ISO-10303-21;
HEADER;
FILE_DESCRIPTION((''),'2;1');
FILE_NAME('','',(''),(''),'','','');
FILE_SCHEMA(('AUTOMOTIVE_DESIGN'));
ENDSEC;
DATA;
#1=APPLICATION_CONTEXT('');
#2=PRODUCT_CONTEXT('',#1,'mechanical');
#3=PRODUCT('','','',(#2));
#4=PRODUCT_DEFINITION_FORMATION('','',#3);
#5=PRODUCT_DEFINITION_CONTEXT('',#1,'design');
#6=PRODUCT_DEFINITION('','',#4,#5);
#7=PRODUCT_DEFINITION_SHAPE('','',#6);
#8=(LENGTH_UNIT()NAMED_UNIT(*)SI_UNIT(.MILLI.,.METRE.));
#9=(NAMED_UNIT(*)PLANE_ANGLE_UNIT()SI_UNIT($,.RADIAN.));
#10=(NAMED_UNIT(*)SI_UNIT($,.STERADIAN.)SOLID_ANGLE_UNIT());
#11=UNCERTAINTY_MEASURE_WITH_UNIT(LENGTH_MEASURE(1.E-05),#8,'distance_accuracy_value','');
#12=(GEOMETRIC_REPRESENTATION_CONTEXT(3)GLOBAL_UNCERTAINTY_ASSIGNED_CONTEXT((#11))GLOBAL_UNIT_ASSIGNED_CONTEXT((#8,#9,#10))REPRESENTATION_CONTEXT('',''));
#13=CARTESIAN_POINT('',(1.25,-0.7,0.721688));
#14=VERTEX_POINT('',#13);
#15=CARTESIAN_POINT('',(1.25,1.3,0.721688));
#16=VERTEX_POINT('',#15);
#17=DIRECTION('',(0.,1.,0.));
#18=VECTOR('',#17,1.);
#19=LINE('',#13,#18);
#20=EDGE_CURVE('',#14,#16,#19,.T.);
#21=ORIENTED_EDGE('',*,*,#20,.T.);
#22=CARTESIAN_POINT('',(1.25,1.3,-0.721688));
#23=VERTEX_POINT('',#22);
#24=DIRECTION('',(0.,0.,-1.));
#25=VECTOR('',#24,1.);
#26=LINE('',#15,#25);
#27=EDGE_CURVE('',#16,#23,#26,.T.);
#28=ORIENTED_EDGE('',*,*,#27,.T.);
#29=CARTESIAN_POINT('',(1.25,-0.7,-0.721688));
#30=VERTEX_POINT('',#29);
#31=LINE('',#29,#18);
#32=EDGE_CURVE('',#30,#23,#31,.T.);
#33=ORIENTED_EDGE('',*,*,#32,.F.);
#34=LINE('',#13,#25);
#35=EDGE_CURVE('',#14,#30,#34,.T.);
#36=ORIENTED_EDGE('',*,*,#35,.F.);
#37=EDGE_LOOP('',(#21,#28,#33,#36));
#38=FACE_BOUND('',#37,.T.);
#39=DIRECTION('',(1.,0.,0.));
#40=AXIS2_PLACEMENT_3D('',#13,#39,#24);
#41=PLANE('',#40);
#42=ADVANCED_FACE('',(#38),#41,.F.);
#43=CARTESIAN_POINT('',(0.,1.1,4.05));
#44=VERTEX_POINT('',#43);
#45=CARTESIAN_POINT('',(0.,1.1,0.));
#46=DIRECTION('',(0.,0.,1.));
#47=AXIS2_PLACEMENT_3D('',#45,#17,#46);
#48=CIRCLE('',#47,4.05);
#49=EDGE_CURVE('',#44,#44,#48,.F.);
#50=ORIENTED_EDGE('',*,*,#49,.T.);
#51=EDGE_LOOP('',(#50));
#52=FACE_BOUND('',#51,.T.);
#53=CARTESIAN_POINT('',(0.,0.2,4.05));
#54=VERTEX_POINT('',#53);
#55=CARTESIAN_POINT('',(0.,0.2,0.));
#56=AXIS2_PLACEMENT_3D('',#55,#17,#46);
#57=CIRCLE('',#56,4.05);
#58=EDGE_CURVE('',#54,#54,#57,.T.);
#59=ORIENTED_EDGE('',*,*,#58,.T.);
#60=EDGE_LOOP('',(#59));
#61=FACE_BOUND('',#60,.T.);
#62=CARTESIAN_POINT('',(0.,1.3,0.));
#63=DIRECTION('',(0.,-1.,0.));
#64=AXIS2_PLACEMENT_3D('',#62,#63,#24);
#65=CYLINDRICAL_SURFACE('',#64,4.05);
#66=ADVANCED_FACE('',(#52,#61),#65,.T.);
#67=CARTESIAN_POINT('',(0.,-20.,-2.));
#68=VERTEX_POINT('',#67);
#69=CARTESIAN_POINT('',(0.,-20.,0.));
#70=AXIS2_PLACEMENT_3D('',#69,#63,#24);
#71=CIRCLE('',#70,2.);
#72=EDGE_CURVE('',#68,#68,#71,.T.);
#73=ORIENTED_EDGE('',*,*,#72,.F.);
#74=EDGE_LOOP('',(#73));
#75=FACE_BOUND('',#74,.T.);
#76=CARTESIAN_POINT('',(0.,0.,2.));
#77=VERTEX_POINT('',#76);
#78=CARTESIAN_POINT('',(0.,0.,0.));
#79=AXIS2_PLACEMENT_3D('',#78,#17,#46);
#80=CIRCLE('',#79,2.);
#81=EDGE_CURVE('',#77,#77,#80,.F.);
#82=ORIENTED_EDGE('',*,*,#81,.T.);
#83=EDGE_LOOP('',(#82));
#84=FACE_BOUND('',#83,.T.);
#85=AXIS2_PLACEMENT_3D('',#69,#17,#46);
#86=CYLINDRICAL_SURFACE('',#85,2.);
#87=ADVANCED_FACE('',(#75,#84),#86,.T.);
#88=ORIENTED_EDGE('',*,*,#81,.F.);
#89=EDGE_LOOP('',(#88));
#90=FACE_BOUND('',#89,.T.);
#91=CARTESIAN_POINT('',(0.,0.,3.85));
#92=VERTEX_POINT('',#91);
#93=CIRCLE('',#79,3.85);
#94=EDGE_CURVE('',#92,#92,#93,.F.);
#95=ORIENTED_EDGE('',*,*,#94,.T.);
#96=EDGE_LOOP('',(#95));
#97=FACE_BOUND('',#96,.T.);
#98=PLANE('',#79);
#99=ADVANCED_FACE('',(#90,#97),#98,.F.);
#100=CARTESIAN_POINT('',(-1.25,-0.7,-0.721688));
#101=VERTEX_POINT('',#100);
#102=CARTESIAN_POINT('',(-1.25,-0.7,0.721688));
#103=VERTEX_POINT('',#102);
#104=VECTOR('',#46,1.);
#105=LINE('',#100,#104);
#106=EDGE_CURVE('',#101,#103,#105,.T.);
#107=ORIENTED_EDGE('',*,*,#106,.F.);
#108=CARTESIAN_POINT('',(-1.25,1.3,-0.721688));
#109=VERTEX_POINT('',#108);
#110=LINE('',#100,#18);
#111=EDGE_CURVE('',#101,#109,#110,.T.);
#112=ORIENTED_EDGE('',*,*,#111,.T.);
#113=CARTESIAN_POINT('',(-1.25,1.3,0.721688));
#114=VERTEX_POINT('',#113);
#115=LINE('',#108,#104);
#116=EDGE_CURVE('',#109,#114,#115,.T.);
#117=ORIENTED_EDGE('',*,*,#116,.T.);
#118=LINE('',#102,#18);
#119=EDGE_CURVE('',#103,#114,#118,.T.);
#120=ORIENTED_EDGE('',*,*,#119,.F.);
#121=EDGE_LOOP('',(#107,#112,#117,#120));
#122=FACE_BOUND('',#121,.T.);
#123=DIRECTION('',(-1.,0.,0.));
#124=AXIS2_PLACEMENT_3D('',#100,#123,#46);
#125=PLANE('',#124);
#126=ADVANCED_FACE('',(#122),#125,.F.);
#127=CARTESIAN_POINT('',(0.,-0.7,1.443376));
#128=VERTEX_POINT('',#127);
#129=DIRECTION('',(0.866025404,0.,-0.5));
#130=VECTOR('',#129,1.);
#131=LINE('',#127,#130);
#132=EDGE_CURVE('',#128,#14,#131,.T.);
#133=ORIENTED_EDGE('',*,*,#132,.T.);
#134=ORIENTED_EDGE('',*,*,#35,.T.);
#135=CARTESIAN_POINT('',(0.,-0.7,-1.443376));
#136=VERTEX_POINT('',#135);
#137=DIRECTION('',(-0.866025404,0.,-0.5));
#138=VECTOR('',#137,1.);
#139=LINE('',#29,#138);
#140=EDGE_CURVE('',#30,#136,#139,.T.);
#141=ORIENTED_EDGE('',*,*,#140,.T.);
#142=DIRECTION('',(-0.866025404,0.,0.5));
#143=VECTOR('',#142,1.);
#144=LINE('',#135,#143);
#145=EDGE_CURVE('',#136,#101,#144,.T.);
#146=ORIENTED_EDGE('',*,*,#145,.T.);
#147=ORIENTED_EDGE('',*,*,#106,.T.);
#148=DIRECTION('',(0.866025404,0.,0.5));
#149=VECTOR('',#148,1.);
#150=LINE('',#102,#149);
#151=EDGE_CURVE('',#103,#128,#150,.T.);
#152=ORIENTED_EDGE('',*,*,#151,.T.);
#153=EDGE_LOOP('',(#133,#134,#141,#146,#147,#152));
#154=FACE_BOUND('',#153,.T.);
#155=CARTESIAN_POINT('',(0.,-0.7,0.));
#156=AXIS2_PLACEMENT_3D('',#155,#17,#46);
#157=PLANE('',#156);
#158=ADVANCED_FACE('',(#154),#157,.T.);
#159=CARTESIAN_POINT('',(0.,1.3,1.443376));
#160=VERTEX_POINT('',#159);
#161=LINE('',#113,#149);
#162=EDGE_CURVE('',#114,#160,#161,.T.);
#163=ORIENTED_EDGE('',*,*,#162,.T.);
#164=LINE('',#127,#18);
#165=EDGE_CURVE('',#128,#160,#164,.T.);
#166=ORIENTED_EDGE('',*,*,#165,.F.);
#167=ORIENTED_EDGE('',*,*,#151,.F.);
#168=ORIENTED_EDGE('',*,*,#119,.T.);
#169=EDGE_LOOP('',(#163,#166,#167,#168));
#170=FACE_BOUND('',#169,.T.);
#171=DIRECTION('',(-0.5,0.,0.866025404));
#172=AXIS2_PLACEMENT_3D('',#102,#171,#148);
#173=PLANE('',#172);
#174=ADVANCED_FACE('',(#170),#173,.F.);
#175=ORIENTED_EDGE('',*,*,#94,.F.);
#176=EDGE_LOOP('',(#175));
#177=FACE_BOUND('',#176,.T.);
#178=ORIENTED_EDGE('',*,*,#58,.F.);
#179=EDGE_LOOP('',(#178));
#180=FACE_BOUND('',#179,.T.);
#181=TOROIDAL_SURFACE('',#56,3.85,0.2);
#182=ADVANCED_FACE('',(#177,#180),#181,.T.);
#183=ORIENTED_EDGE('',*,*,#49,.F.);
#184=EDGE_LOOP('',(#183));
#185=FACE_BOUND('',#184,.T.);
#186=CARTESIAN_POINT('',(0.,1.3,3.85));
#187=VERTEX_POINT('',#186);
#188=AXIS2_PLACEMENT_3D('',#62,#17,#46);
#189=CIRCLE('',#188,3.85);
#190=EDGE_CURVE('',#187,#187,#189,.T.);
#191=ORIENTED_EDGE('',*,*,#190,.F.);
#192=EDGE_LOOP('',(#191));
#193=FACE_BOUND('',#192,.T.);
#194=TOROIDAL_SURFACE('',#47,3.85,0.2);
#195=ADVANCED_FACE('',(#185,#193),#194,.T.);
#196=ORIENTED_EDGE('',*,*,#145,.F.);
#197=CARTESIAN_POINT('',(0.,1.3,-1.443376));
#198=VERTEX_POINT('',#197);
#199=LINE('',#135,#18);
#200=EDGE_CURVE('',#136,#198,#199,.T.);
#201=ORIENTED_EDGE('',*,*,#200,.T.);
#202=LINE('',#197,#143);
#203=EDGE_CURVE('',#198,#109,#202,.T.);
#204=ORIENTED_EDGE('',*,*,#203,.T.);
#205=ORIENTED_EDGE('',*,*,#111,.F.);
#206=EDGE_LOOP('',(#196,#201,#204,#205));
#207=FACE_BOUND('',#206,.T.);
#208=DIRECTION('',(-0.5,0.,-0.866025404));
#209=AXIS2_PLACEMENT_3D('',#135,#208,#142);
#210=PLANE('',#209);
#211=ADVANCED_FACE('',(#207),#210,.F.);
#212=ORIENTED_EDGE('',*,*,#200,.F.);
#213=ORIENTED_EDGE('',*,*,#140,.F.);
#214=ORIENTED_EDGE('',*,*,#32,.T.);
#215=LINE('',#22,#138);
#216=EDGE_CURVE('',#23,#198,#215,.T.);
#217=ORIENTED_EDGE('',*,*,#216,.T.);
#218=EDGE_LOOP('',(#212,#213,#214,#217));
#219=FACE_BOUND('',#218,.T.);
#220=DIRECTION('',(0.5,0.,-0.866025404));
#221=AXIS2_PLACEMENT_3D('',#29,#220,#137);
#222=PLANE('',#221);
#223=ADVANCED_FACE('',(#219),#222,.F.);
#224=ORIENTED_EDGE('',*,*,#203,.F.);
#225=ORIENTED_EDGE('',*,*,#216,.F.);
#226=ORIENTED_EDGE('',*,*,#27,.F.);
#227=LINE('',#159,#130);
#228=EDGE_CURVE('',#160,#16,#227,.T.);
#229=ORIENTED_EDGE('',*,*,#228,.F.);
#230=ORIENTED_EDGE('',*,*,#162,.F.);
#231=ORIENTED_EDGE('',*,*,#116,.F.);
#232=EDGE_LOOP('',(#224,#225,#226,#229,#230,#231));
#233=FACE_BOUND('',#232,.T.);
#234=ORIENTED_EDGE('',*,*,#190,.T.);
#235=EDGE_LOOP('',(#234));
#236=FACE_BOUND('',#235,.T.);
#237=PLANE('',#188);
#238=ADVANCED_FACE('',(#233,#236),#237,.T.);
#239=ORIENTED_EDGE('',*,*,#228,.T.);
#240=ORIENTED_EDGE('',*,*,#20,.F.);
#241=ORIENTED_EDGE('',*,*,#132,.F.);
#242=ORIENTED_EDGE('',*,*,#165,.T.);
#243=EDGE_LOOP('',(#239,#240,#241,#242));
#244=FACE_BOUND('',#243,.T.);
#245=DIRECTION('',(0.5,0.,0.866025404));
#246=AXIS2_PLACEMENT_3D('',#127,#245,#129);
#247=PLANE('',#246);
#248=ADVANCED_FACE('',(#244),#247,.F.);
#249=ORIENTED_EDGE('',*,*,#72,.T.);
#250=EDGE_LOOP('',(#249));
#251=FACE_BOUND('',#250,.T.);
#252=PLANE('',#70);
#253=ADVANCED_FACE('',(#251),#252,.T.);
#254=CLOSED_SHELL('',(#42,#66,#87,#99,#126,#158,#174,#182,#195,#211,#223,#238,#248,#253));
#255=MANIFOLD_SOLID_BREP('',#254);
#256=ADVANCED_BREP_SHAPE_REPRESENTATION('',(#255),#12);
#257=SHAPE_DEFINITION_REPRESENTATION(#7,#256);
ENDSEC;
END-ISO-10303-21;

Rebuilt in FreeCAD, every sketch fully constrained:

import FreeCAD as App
import Part
import Sketcher
Q = App.Units.Quantity


def edges_at(feature, points):
    """Names of the edges that pass closest to the given points."""
    edges = feature.Shape.Edges
    near = lambda p: min(range(len(edges)), key=lambda i: edges[i].distToShape(Part.Vertex(*p))[0])
    return sorted({f"Edge{near(p) + 1}" for p in points})


def add_polygon(sketch, points):
    """Adds a closed chain of lines whose ends are joined by coincident constraints."""
    first, n = sketch.GeometryCount, len(points)
    for a, b in zip(points, points[1:] + points[:1]):
        sketch.addGeometry(Part.LineSegment(App.Vector(*a, 0), App.Vector(*b, 0)), False)
    for i in range(n):
        sketch.addConstraint(Sketcher.Constraint("Coincident", first + i, 2, first + (i + 1) % n, 1))

doc = App.newDocument("Part")
body = doc.addObject("PartDesign::Body", "Body")

# Sketch on XZ plane
sketch1 = body.newObject("Sketcher::SketchObject", "Sketch")
sketch1.AttachmentSupport = (doc.getObject("XZ_Plane"), [""])
sketch1.MapMode = "FlatFace"
sketch1.addGeometry(Part.Circle(App.Vector(0, 0, 0), App.Vector(0, 0, 1), 4.05), False)
sketch1.addConstraint([
    Sketcher.Constraint("Coincident", 0, 3, -1, 1),
    Sketcher.Constraint("Diameter", 0, 8.1),
])
pad1 = body.newObject("PartDesign::Pad", "Pad")
pad1.Profile = sketch1
pad1.Length = 1.3
pad1.Reversed = True
doc.recompute()

fillet = body.newObject("PartDesign::Fillet", "Fillet")
fillet.Base = (pad1, edges_at(pad1, [(-4.05, 0, 0), (-4.05, 1.3, 0)]))
fillet.Radius = 0.2

# Sketch on XZ plane
sketch2 = body.newObject("Sketcher::SketchObject", "Sketch001")
sketch2.AttachmentSupport = (doc.getObject("XZ_Plane"), [""])
sketch2.MapMode = "FlatFace"
sketch2.addGeometry(Part.Circle(App.Vector(0, 0, 0), App.Vector(0, 0, 1), 2), False)
sketch2.addConstraint([
    Sketcher.Constraint("Coincident", 0, 3, -1, 1),
    Sketcher.Constraint("Diameter", 0, 4.0),
])
pad2 = body.newObject("PartDesign::Pad", "Pad001")
pad2.Profile = sketch2
pad2.Length = 20

# Sketch on XZ plane
sketch3 = body.newObject("Sketcher::SketchObject", "Sketch002")
sketch3.AttachmentSupport = (doc.getObject("XZ_Plane"), [""])
sketch3.MapMode = "FlatFace"
sketch3.AttachmentOffset = App.Placement(App.Vector(0, 0, -1.3), App.Rotation())
add_polygon(sketch3, [(-1.25, 0.721688), (0, 1.443376), (1.25, 0.721688), (1.25, -0.721688), (0, -1.443376), (-1.25, -0.721688)])  # lines 0-5
sketch3.addConstraint([
    Sketcher.Constraint("Vertical", 2),
    Sketcher.Constraint("Vertical", 5),
    Sketcher.Constraint("Symmetric", 0, 2, 3, 2, -1, 1),
    Sketcher.Constraint("Symmetric", 1, 2, 4, 2, -1, 1),
    Sketcher.Constraint("PointOnObject", 0, 2, -2),
    Sketcher.Constraint("Parallel", 0, 3),
    Sketcher.Constraint("Horizontal", 2, 2, 4, 2),
    Sketcher.Constraint("Angle", 0, Q("30 deg")),
    Sketcher.Constraint("DistanceX", 4, 2, 2, 2, 2.5),
    Sketcher.Constraint("DistanceY", 2, 2, 2, 1, 1.443376),
])
pocket1 = body.newObject("PartDesign::Pocket", "Pocket")
pocket1.Profile = sketch3
pocket1.Length = 2
pocket1.Reversed = True

doc.recompute()
